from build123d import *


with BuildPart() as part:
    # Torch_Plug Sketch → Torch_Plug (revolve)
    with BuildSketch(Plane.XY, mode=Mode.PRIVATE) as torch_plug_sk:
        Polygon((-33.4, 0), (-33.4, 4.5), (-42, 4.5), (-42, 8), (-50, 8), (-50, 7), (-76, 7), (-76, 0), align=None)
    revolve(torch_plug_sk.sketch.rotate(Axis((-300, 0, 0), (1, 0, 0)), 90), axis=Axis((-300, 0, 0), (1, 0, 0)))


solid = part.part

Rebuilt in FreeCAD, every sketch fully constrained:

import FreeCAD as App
import Part
import Sketcher
Q = App.Units.Quantity

doc = App.newDocument("Part")
body = doc.addObject("PartDesign::Body", "Body")

# Sketch on XY plane
sketch1 = body.newObject("Sketcher::SketchObject", "Sketch")
sketch1.AttachmentSupport = (doc.getObject("XY_Plane"), [""])
sketch1.MapMode = "FlatFace"
sketch1.addGeometry([
    Part.LineSegment(App.Vector(-33.4, 0, 0), App.Vector(-33.4, 4.5, 0)),  # 0
    Part.LineSegment(App.Vector(-33.4, 4.5, 0), App.Vector(-42, 4.5, 0)),  # 1
    Part.LineSegment(App.Vector(-42, 4.5, 0), App.Vector(-42, 8, 0)),  # 2
    Part.LineSegment(App.Vector(-42, 8, 0), App.Vector(-50, 8, 0)),  # 3
    Part.LineSegment(App.Vector(-50, 8, 0), App.Vector(-50, 7, 0)),  # 4
    Part.LineSegment(App.Vector(-50, 7, 0), App.Vector(-76, 7, 0)),  # 5
    Part.LineSegment(App.Vector(-76, 7, 0), App.Vector(-76, 0, 0)),  # 6
    Part.LineSegment(App.Vector(-76, 0, 0), App.Vector(-33.4, 0, 0)),  # 7
], False)
sketch1.addConstraint([
    Sketcher.Constraint("Coincident", 0, 2, 1, 1),
    Sketcher.Constraint("Coincident", 1, 2, 2, 1),
    Sketcher.Constraint("Coincident", 2, 2, 3, 1),
    Sketcher.Constraint("Coincident", 3, 2, 4, 1),
    Sketcher.Constraint("Coincident", 4, 2, 5, 1),
    Sketcher.Constraint("Coincident", 5, 2, 6, 1),
    Sketcher.Constraint("Coincident", 6, 2, 7, 1),
    Sketcher.Constraint("Coincident", 7, 2, 0, 1),
    Sketcher.Constraint("Vertical", 0),
    Sketcher.Constraint("Horizontal", 1),
    Sketcher.Constraint("Vertical", 2),
    Sketcher.Constraint("Horizontal", 3),
    Sketcher.Constraint("Vertical", 4),
    Sketcher.Constraint("Horizontal", 5),
    Sketcher.Constraint("Vertical", 6),
    Sketcher.Constraint("Horizontal", 7),
    Sketcher.Constraint("PointOnObject", 6, 2, -1),
    Sketcher.Constraint("DistanceX", 3, 2, 3, 1, Q("8 mm")),
    Sketcher.Constraint("DistanceX", 5, 2, 5, 1, Q("26 mm")),
    Sketcher.Constraint("DistanceY", 4, 2, 4, 1, Q("1 mm")),
    Sketcher.Constraint("DistanceY", 6, 2, 6, 1, Q("7 mm")),
    Sketcher.Constraint("DistanceX", 1, 2, 1, 1, Q("8.6 mm")),
    Sketcher.Constraint("DistanceY", 0, 1, 0, 2, Q("4.5 mm")),
    Sketcher.Constraint("DistanceX", 1, 2, -1, 1, Q("42 mm")),
])
revolution = body.newObject("PartDesign::Revolution", "Revolution")
revolution.Profile = sketch1
revolution.ReferenceAxis = (sketch1, ["H_Axis"])
revolution.Angle = 360

doc.recompute()
